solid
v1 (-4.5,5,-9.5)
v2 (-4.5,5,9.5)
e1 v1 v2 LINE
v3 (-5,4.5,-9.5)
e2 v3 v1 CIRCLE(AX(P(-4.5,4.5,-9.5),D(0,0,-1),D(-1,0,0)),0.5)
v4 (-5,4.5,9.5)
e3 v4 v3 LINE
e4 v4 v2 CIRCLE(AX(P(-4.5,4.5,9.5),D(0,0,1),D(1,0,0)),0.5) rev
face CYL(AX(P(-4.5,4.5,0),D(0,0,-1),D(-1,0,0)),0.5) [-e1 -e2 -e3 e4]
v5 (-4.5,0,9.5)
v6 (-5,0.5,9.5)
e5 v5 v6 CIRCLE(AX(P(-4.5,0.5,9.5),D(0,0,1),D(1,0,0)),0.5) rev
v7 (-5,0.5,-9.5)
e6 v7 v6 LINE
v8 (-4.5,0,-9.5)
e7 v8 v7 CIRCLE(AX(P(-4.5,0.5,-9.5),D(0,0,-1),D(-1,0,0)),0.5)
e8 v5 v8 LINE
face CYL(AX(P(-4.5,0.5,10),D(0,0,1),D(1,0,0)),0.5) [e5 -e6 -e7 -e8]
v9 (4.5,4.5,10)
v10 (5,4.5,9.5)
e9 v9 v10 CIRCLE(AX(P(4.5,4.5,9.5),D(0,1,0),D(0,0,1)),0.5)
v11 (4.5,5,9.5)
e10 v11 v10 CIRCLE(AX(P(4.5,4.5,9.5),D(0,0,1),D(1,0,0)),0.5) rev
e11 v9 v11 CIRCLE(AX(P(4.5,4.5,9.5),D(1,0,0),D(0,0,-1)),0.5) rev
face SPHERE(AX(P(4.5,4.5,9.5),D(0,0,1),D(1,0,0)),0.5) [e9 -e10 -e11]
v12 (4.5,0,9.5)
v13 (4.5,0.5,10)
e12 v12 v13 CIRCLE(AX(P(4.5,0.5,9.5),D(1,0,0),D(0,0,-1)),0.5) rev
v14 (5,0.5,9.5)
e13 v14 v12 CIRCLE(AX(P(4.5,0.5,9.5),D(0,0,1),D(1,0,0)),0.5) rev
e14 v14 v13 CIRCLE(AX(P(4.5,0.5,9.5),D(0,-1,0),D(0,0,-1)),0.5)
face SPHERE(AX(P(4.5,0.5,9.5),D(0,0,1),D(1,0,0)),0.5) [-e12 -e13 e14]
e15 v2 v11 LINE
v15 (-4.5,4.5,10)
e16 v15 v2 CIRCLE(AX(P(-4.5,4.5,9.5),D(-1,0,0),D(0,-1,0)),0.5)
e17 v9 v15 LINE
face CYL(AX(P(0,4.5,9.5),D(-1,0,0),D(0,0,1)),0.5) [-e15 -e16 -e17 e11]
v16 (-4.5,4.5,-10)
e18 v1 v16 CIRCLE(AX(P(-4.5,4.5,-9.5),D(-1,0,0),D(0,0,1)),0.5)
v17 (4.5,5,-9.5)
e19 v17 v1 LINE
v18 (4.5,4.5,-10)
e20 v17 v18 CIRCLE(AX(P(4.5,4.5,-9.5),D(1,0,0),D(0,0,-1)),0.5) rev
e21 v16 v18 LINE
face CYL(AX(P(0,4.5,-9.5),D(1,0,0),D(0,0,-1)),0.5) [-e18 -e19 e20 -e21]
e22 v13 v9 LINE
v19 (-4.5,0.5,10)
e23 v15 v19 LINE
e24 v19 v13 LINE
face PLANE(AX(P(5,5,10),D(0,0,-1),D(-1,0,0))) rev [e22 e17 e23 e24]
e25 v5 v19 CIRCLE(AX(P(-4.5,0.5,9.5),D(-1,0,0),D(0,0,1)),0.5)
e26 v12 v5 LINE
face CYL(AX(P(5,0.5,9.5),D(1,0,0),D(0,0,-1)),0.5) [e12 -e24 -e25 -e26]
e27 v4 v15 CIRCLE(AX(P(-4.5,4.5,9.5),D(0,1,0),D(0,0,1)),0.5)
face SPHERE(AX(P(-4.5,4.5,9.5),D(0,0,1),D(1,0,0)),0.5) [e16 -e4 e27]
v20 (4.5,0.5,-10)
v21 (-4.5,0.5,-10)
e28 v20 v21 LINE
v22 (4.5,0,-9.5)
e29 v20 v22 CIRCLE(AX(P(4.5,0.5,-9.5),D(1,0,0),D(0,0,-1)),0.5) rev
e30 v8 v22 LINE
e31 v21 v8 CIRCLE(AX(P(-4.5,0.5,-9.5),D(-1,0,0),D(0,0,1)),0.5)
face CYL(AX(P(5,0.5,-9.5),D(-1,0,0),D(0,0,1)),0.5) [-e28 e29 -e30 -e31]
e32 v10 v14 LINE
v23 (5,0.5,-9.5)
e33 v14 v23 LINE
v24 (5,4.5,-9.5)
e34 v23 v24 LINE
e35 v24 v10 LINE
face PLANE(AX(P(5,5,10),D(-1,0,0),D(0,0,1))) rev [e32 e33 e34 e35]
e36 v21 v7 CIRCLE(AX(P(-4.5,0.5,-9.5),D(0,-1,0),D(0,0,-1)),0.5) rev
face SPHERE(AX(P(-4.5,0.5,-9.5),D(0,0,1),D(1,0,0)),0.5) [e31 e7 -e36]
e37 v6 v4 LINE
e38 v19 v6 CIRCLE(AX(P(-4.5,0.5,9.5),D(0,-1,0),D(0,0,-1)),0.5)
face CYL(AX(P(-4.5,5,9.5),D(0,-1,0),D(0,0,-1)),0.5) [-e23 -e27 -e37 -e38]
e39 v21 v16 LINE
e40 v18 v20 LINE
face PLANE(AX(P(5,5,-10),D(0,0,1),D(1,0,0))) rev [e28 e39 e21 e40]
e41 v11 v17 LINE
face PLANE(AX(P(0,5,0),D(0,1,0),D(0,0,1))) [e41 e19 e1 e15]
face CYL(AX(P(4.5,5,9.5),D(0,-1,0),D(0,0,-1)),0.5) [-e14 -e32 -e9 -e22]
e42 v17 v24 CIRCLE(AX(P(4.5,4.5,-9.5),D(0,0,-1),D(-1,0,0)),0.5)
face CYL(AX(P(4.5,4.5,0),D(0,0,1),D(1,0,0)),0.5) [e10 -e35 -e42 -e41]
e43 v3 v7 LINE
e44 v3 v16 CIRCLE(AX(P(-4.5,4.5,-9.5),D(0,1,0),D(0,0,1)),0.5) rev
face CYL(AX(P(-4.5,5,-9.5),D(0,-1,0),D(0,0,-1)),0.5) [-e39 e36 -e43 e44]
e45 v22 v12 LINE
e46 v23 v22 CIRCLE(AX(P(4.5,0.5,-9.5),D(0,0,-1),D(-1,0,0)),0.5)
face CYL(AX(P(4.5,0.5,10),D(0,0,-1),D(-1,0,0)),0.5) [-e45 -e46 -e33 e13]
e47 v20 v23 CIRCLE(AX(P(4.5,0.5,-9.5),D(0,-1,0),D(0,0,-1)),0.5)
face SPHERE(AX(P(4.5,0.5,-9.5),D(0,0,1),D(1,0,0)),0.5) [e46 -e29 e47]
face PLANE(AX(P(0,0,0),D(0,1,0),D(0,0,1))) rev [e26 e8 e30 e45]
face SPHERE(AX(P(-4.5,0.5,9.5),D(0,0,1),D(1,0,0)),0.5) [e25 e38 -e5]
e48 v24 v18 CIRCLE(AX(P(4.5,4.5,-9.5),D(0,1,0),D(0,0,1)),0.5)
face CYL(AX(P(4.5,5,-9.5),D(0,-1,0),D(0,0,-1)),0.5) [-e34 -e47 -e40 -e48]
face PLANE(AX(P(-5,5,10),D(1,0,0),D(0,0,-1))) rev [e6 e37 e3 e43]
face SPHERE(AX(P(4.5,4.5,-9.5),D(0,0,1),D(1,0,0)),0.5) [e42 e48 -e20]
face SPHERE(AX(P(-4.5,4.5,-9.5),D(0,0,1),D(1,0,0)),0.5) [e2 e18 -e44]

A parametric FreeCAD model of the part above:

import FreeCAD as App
import Part
import Sketcher
Q = App.Units.Quantity


def add_polygon(sketch, points):
    """Adds a closed chain of lines whose ends are joined by coincident constraints."""
    first, n = sketch.GeometryCount, len(points)
    for a, b in zip(points, points[1:] + points[:1]):
        sketch.addGeometry(Part.LineSegment(App.Vector(*a, 0), App.Vector(*b, 0)), False)
    for i in range(n):
        sketch.addConstraint(Sketcher.Constraint("Coincident", first + i, 2, first + (i + 1) % n, 1))

doc = App.newDocument("Part")
body = doc.addObject("PartDesign::Body", "Body")

sketch1 = body.newObject("Sketcher::SketchObject", "Sketch")
sketch1.AttachmentSupport = (doc.getObject("XZ_Plane"), [""])
sketch1.MapMode = "FlatFace"
add_polygon(sketch1, [(-5, -10), (-5, 10), (5, 10), (5, -10)])
sketch1.addConstraint(Sketcher.Constraint("Vertical", 0))
sketch1.addConstraint(Sketcher.Constraint("Horizontal", 1))
sketch1.addConstraint(Sketcher.Constraint("Vertical", 2))
sketch1.addConstraint(Sketcher.Constraint("Horizontal", 3))
sketch1.addConstraint(Sketcher.Constraint("Symmetric", 0, 2, 2, 2, -1, 1))
sketch1.addConstraint(Sketcher.Constraint("DistanceX", 1, 1, 1, 2, Q("10 mm")))
sketch1.addConstraint(Sketcher.Constraint("DistanceY", 0, 1, 0, 2, Q("20 mm")))
pad1 = body.newObject("PartDesign::Pad", "Pad")
pad1.Profile = sketch1
pad1.Length = 5
pad1.Reversed = True
doc.recompute()

fillet = body.newObject("PartDesign::Fillet", "Fillet")
fillet.Base = (pad1, ["Edge1"])
fillet.UseAllEdges = True
fillet.Radius = 0.5

doc.recompute()
